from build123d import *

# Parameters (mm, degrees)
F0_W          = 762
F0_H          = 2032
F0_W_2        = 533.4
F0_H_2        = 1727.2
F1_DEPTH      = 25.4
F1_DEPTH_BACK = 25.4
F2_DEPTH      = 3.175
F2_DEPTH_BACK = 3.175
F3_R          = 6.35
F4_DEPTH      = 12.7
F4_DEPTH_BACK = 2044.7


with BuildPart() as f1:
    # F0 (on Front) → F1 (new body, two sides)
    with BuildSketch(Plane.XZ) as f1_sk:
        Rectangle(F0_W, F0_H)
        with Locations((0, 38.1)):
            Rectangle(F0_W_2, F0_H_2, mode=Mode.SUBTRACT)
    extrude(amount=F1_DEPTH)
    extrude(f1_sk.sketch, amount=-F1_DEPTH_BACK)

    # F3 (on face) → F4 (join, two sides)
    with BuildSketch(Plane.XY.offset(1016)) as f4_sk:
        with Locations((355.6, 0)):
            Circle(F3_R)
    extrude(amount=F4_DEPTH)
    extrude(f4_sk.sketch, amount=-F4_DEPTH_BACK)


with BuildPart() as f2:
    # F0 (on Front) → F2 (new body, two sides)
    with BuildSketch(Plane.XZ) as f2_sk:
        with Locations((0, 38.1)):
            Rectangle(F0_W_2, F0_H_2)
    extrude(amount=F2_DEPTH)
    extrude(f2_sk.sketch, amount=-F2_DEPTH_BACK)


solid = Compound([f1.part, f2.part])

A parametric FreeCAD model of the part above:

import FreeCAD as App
import Part
import Sketcher

V = App.Vector
Q = App.Units.Quantity

doc = App.newDocument("Part")
body = doc.addObject("PartDesign::Body", "Body")

# Sketch on XZ plane
sketch1 = doc.addObject("Sketcher::SketchObject", "Sketch")
body.addObject(sketch1)
sketch1.AttachmentSupport = (doc.XZ_Plane, [""])
sketch1.MapMode = "FlatFace"
sketch1.addGeometry([
    Part.LineSegment(V(-381, 1016, 0), V(-381, -1016, 0)),  # 0
    Part.LineSegment(V(-381, -1016, 0), V(381, -1016, 0)),  # 1
    Part.LineSegment(V(381, -1016, 0), V(381, 1016, 0)),  # 2
    Part.LineSegment(V(381, 1016, 0), V(-381, 1016, 0)),  # 3
    Part.LineSegment(V(267, -826, 0), V(-267, -826, 0)),  # 4
    Part.LineSegment(V(-267, -826, 0), V(-267, 902, 0)),  # 5
    Part.LineSegment(V(-267, 902, 0), V(267, 902, 0)),  # 6
    Part.LineSegment(V(267, 902, 0), V(267, -826, 0)),  # 7
], False)
sketch1.addConstraint([
    Sketcher.Constraint("Coincident", 0, 2, 1, 1),
    Sketcher.Constraint("Coincident", 1, 2, 2, 1),
    Sketcher.Constraint("Coincident", 2, 2, 3, 1),
    Sketcher.Constraint("Coincident", 3, 2, 0, 1),
    Sketcher.Constraint("Coincident", 4, 2, 5, 1),
    Sketcher.Constraint("Coincident", 5, 2, 6, 1),
    Sketcher.Constraint("Coincident", 6, 2, 7, 1),
    Sketcher.Constraint("Coincident", 7, 2, 4, 1),
    Sketcher.Constraint("Vertical", 0),
    Sketcher.Constraint("Horizontal", 1),
    Sketcher.Constraint("Vertical", 2),
    Sketcher.Constraint("Horizontal", 3),
    Sketcher.Constraint("Horizontal", 4),
    Sketcher.Constraint("Vertical", 5),
    Sketcher.Constraint("Horizontal", 6),
    Sketcher.Constraint("Vertical", 7),
    Sketcher.Constraint("Symmetric", 0, 2, 2, 2, -1, 1),
    Sketcher.Constraint("DistanceX", 1, 1, 1, 2, Q("30 in")),
    Sketcher.Constraint("DistanceX", 4, 2, 4, 1, Q("21 in")),
    Sketcher.Constraint("DistanceY", 0, 2, 0, 1, Q("80 in")),
    Sketcher.Constraint("DistanceY", 5, 1, 5, 2, Q("68 in")),
    Sketcher.Constraint("DistanceX", 4, 2, -1, 1, Q("10.5 in")),
    Sketcher.Constraint("DistanceY", 4, 2, -1, 1, Q("32.5 in")),
])
pad1 = doc.addObject("PartDesign::Pad", "Pad")
body.addObject(pad1)
pad1.Profile = sketch1
pad1.Type = "TwoLengths"
pad1.Length = Q("1 in")
pad1.Length2 = Q("1 in")

# Sketch on XY plane
sketch2 = doc.addObject("Sketcher::SketchObject", "Sketch001")
body.addObject(sketch2)
sketch2.AttachmentSupport = (doc.XY_Plane, [""])
sketch2.MapMode = "FlatFace"
sketch2.AttachmentOffset = App.Placement(V(0, 0, 40 * 25.4), App.Rotation())
sketch2.addGeometry(Part.Circle(V(356, 0, 0), V(0, 0, 1), 6), False)
sketch2.addConstraint([
    Sketcher.Constraint("PointOnObject", 0, 3, -1),
    Sketcher.Constraint("Diameter", 0, Q("0.5 in")),
    Sketcher.Constraint("DistanceX", -1, 1, 0, 3, Q("14 in")),
])
pad2 = doc.addObject("PartDesign::Pad", "Pad001")
body.addObject(pad2)
pad2.Profile = sketch2
pad2.Type = "TwoLengths"
pad2.Length = Q("0.5 in")
pad2.Length2 = Q("80.5 in")
body2 = doc.addObject("PartDesign::Body", "Body001")

# Sketch on XZ plane
sketch3 = doc.addObject("Sketcher::SketchObject", "Sketch002")
body2.addObject(sketch3)
sketch3.AttachmentSupport = (doc.getObject("XZ_Plane001"), [""])
sketch3.MapMode = "FlatFace"
sketch3.addGeometry([
    Part.LineSegment(V(-267, 902, 0), V(-267, -826, 0)),
    Part.LineSegment(V(-267, -826, 0), V(267, -826, 0)),
    Part.LineSegment(V(267, -826, 0), V(267, 902, 0)),
    Part.LineSegment(V(267, 902, 0), V(-267, 902, 0)),
], False)
sketch3.addConstraint([
    Sketcher.Constraint("Coincident", 0, 2, 1, 1),
    Sketcher.Constraint("Coincident", 1, 2, 2, 1),
    Sketcher.Constraint("Coincident", 2, 2, 3, 1),
    Sketcher.Constraint("Coincident", 3, 2, 0, 1),
    Sketcher.Constraint("Vertical", 0),
    Sketcher.Constraint("Horizontal", 1),
    Sketcher.Constraint("Vertical", 2),
    Sketcher.Constraint("Horizontal", 3),
    Sketcher.Constraint("DistanceX", 1, 1, 1, 2, Q("21 in")),
    Sketcher.Constraint("DistanceY", 0, 2, 0, 1, Q("68 in")),
    Sketcher.Constraint("DistanceX", 0, 2, -1, 1, Q("10.5 in")),
    Sketcher.Constraint("DistanceY", 0, 2, -1, 1, Q("32.5 in")),
])
pad3 = doc.addObject("PartDesign::Pad", "Pad002")
body2.addObject(pad3)
pad3.Profile = sketch3
pad3.Type = "TwoLengths"
pad3.Length = Q("0.125 in")
pad3.Length2 = Q("0.125 in")

doc.recompute()
